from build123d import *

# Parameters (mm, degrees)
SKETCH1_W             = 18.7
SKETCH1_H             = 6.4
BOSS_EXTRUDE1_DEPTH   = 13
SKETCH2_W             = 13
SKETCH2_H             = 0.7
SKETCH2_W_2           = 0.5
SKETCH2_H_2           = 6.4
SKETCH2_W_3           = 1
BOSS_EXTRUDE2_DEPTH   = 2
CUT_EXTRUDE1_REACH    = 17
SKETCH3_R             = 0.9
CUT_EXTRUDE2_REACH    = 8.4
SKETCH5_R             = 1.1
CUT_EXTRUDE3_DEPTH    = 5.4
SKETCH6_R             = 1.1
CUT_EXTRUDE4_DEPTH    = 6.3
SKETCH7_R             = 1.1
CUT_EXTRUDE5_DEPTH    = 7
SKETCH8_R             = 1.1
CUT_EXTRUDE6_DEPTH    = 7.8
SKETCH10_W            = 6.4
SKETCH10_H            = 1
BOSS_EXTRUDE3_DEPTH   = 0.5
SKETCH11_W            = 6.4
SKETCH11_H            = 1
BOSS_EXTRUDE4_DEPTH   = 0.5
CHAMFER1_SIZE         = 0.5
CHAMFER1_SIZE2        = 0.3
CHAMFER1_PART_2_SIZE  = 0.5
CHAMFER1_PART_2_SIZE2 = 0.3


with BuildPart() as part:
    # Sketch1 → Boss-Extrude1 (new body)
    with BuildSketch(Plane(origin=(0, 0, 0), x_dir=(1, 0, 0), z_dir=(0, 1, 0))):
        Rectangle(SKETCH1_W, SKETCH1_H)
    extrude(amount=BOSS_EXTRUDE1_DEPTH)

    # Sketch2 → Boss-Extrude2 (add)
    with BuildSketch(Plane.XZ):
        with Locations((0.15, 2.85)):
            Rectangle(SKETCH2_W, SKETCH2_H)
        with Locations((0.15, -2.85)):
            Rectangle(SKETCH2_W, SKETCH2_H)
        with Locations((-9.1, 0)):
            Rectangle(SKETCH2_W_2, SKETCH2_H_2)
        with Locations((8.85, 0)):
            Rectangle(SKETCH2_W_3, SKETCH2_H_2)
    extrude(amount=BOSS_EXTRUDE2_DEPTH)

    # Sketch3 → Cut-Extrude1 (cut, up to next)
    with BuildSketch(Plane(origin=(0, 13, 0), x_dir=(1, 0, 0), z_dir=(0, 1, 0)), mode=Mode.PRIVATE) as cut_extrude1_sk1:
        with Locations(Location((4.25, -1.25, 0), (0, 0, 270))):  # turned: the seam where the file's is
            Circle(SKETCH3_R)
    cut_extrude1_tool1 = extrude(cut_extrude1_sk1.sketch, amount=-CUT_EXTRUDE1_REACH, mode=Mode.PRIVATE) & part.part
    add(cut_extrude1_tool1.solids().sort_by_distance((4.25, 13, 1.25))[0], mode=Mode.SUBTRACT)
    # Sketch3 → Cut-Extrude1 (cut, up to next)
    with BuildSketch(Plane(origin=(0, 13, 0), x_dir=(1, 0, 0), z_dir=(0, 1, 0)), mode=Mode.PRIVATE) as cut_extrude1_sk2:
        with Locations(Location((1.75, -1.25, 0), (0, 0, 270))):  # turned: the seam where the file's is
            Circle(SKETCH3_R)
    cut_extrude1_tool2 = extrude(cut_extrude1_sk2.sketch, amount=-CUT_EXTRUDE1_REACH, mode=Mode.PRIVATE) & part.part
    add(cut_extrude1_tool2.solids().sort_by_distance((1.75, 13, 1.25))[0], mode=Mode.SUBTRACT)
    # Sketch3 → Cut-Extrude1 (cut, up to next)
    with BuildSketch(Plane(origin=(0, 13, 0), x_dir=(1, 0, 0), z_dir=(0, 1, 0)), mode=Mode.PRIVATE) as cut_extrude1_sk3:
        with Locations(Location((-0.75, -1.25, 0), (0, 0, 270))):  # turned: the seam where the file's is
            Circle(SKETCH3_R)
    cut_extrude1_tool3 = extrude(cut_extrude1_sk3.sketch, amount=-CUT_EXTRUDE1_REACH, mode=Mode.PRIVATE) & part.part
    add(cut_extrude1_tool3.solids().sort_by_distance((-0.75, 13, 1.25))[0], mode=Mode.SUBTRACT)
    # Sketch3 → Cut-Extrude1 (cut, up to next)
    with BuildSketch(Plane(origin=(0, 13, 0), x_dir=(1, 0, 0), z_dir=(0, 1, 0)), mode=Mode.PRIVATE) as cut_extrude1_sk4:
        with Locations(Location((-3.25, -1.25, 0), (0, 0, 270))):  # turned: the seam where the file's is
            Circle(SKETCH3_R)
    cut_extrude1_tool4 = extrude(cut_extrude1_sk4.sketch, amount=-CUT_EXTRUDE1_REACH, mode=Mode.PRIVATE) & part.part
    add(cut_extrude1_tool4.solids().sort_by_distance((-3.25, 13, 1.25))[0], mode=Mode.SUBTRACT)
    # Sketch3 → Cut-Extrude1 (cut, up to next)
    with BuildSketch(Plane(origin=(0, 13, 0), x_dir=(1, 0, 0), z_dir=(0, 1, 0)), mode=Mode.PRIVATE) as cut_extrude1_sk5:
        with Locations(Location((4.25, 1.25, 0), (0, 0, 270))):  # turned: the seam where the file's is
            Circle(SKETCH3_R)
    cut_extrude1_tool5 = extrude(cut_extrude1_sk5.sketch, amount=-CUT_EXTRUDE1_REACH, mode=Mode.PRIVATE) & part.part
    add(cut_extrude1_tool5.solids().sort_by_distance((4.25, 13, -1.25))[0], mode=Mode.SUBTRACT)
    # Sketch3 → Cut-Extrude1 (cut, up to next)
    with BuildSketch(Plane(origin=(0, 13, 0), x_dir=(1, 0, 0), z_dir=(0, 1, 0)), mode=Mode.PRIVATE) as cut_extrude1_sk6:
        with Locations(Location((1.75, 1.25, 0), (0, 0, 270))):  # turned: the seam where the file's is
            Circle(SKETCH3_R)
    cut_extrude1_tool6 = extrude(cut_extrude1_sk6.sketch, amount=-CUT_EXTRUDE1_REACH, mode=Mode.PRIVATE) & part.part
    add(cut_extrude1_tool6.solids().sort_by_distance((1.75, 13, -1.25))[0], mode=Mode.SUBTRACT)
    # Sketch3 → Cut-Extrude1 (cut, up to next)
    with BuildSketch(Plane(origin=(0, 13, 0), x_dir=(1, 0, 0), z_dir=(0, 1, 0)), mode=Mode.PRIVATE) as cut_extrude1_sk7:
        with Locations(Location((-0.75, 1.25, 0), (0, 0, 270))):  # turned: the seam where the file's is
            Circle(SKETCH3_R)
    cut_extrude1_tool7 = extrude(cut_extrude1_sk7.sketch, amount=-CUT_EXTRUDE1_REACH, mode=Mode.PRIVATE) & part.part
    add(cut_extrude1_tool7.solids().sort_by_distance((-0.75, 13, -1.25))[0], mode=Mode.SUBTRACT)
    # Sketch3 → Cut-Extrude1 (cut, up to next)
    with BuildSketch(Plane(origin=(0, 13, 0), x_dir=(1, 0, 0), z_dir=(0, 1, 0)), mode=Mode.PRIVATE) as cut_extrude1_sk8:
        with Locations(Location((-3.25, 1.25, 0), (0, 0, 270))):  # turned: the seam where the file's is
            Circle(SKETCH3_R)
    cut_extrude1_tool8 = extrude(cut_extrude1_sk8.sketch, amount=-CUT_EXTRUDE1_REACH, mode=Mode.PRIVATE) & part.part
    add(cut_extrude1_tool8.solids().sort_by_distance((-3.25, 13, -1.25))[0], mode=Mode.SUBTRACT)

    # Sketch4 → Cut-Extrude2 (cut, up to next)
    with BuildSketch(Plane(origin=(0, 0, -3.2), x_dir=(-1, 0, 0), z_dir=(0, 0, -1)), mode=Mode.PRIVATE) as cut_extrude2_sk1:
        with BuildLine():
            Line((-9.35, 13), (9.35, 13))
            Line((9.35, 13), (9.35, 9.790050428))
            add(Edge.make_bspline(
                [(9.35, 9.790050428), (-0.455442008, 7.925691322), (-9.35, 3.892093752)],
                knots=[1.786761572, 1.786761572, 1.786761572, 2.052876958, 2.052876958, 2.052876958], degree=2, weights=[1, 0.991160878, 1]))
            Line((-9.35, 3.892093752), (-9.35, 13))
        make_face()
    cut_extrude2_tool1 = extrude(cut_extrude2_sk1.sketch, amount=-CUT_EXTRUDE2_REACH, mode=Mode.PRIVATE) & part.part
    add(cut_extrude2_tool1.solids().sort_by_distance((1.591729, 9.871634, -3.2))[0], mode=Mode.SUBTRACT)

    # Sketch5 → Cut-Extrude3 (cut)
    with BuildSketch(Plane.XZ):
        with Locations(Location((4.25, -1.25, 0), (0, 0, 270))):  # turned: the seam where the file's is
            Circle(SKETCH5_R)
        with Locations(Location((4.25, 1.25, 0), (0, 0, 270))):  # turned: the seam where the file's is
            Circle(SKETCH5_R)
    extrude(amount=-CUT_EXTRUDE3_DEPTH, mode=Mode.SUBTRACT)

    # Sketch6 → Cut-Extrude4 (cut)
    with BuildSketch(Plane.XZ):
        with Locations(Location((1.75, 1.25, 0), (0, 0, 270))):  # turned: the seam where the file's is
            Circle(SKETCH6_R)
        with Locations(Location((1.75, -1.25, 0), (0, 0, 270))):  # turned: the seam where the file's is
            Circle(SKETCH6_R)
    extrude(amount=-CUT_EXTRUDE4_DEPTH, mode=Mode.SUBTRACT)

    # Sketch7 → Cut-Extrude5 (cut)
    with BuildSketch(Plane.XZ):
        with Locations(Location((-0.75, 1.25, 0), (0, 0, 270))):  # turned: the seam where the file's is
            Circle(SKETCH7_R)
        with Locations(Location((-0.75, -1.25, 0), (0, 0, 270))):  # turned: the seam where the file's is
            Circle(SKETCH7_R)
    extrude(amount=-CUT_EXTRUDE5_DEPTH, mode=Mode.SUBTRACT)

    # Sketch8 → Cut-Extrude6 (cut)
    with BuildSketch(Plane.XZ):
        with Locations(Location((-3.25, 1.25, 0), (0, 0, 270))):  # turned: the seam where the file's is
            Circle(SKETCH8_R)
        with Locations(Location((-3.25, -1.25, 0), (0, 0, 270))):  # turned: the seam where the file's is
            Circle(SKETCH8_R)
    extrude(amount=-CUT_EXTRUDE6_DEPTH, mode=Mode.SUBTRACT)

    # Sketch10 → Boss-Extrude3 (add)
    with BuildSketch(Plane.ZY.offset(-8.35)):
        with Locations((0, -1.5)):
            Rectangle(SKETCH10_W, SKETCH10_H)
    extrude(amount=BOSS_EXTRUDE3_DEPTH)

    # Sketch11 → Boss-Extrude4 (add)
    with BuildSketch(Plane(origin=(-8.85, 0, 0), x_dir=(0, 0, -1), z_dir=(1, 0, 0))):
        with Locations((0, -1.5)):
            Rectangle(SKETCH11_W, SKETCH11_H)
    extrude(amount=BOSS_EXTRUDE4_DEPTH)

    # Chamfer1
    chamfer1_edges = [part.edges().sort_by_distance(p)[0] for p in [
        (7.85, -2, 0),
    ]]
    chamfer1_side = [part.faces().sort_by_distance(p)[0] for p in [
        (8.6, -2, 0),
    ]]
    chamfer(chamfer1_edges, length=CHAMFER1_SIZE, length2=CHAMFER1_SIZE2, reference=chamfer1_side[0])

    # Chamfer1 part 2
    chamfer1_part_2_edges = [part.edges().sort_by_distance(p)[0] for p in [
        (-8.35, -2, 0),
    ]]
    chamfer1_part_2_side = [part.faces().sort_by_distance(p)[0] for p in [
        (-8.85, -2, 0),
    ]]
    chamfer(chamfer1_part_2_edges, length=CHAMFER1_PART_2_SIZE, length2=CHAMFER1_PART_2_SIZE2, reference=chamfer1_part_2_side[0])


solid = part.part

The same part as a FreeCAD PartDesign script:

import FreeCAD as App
import Part
import Sketcher
Q = App.Units.Quantity


def edges_at(feature, points):
    """Names of the edges that pass closest to the given points."""
    edges = feature.Shape.Edges
    near = lambda p: min(range(len(edges)), key=lambda i: edges[i].distToShape(Part.Vertex(*p))[0])
    return sorted({f"Edge{near(p) + 1}" for p in points})

doc = App.newDocument("Part")
body = doc.addObject("PartDesign::Body", "Body")

# Sketch on XZ plane
sketch1 = body.newObject("Sketcher::SketchObject", "Sketch")
sketch1.AttachmentSupport = (doc.getObject("XZ_Plane"), [""])
sketch1.MapMode = "FlatFace"
sketch1.addGeometry(Part.LineSegment(App.Vector(-9, -3, 0), App.Vector(-9, 3, 0)), False)
sketch1.addGeometry(Part.LineSegment(App.Vector(-9, 3, 0), App.Vector(9, 3, 0)), False)
sketch1.addGeometry(Part.LineSegment(App.Vector(9, 3, 0), App.Vector(9, -3, 0)), False)
sketch1.addGeometry(Part.LineSegment(App.Vector(9, -3, 0), App.Vector(-9, -3, 0)), False)
sketch1.addConstraint(Sketcher.Constraint("Coincident", 0, 2, 1, 1))
sketch1.addConstraint(Sketcher.Constraint("Coincident", 1, 2, 2, 1))
sketch1.addConstraint(Sketcher.Constraint("Coincident", 2, 2, 3, 1))
sketch1.addConstraint(Sketcher.Constraint("Coincident", 3, 2, 0, 1))
sketch1.addConstraint(Sketcher.Constraint("Vertical", 0))
sketch1.addConstraint(Sketcher.Constraint("Horizontal", 1))
sketch1.addConstraint(Sketcher.Constraint("Vertical", 2))
sketch1.addConstraint(Sketcher.Constraint("Horizontal", 3))
sketch1.addConstraint(Sketcher.Constraint("Symmetric", 0, 2, 2, 2, -1, 1))
sketch1.addConstraint(Sketcher.Constraint("DistanceX", 1, 1, 1, 2, Q("18.7 mm")))
sketch1.addConstraint(Sketcher.Constraint("DistanceY", 0, 1, 0, 2, Q("6.4 mm")))
pad1 = body.newObject("PartDesign::Pad", "Pad")
pad1.Profile = sketch1
pad1.Length = 13
pad1.Reversed = True

# Sketch on XZ plane
sketch2 = body.newObject("Sketcher::SketchObject", "Sketch001")
sketch2.AttachmentSupport = (doc.getObject("XZ_Plane"), [""])
sketch2.MapMode = "FlatFace"
sketch2.addGeometry(Part.LineSegment(App.Vector(-6.3, 3.2, 0), App.Vector(-6.3, 2.5, 0)), False)
sketch2.addGeometry(Part.LineSegment(App.Vector(-6.3, 2.5, 0), App.Vector(6.7, 2.5, 0)), False)
sketch2.addGeometry(Part.LineSegment(App.Vector(6.7, 2.5, 0), App.Vector(6.7, 3.2, 0)), False)
sketch2.addGeometry(Part.LineSegment(App.Vector(6.7, 3.2, 0), App.Vector(-6.3, 3.2, 0)), False)
sketch2.addGeometry(Part.LineSegment(App.Vector(-6.3, -2.5, 0), App.Vector(-6.3, -3.2, 0)), False)
sketch2.addGeometry(Part.LineSegment(App.Vector(-6.3, -3.2, 0), App.Vector(6.7, -3.2, 0)), False)
sketch2.addGeometry(Part.LineSegment(App.Vector(6.7, -3.2, 0), App.Vector(6.7, -2.5, 0)), False)
sketch2.addGeometry(Part.LineSegment(App.Vector(6.7, -2.5, 0), App.Vector(-6.3, -2.5, 0)), False)
sketch2.addGeometry(Part.LineSegment(App.Vector(-9.3, 3.2, 0), App.Vector(-9.3, -3.2, 0)), False)
sketch2.addGeometry(Part.LineSegment(App.Vector(-9.3, -3.2, 0), App.Vector(-8.8, -3.2, 0)), False)
sketch2.addGeometry(Part.LineSegment(App.Vector(-8.8, -3.2, 0), App.Vector(-8.8, 3.2, 0)), False)
sketch2.addGeometry(Part.LineSegment(App.Vector(-8.8, 3.2, 0), App.Vector(-9.3, 3.2, 0)), False)
sketch2.addGeometry(Part.LineSegment(App.Vector(8.3, 3.2, 0), App.Vector(8.3, -3.2, 0)), False)
sketch2.addGeometry(Part.LineSegment(App.Vector(8.3, -3.2, 0), App.Vector(9.3, -3.2, 0)), False)
sketch2.addGeometry(Part.LineSegment(App.Vector(9.3, -3.2, 0), App.Vector(9.3, 3.2, 0)), False)
sketch2.addGeometry(Part.LineSegment(App.Vector(9.3, 3.2, 0), App.Vector(8.3, 3.2, 0)), False)
sketch2.addConstraint(Sketcher.Constraint("Coincident", 0, 2, 1, 1))
sketch2.addConstraint(Sketcher.Constraint("Coincident", 1, 2, 2, 1))
sketch2.addConstraint(Sketcher.Constraint("Coincident", 2, 2, 3, 1))
sketch2.addConstraint(Sketcher.Constraint("Coincident", 3, 2, 0, 1))
sketch2.addConstraint(Sketcher.Constraint("Coincident", 4, 2, 5, 1))
sketch2.addConstraint(Sketcher.Constraint("Coincident", 5, 2, 6, 1))
sketch2.addConstraint(Sketcher.Constraint("Coincident", 6, 2, 7, 1))
sketch2.addConstraint(Sketcher.Constraint("Coincident", 7, 2, 4, 1))
sketch2.addConstraint(Sketcher.Constraint("Coincident", 8, 2, 9, 1))
sketch2.addConstraint(Sketcher.Constraint("Coincident", 9, 2, 10, 1))
sketch2.addConstraint(Sketcher.Constraint("Coincident", 10, 2, 11, 1))
sketch2.addConstraint(Sketcher.Constraint("Coincident", 11, 2, 8, 1))
sketch2.addConstraint(Sketcher.Constraint("Coincident", 12, 2, 13, 1))
sketch2.addConstraint(Sketcher.Constraint("Coincident", 13, 2, 14, 1))
sketch2.addConstraint(Sketcher.Constraint("Coincident", 14, 2, 15, 1))
sketch2.addConstraint(Sketcher.Constraint("Coincident", 15, 2, 12, 1))
sketch2.addConstraint(Sketcher.Constraint("Vertical", 0))
sketch2.addConstraint(Sketcher.Constraint("Horizontal", 1))
sketch2.addConstraint(Sketcher.Constraint("Vertical", 2))
sketch2.addConstraint(Sketcher.Constraint("Horizontal", 3))
sketch2.addConstraint(Sketcher.Constraint("Vertical", 4))
sketch2.addConstraint(Sketcher.Constraint("Horizontal", 5))
sketch2.addConstraint(Sketcher.Constraint("Vertical", 6))
sketch2.addConstraint(Sketcher.Constraint("Horizontal", 7))
sketch2.addConstraint(Sketcher.Constraint("Vertical", 8))
sketch2.addConstraint(Sketcher.Constraint("Horizontal", 9))
sketch2.addConstraint(Sketcher.Constraint("Vertical", 10))
sketch2.addConstraint(Sketcher.Constraint("Horizontal", 11))
sketch2.addConstraint(Sketcher.Constraint("Vertical", 12))
sketch2.addConstraint(Sketcher.Constraint("Horizontal", 13))
sketch2.addConstraint(Sketcher.Constraint("Vertical", 14))
sketch2.addConstraint(Sketcher.Constraint("Horizontal", 15))
sketch2.addConstraint(Sketcher.Constraint("Symmetric", 11, 2, 13, 2, -1, 1))
sketch2.addConstraint(Sketcher.Constraint("Symmetric", 3, 2, 4, 2, -1))
sketch2.addConstraint(Sketcher.Constraint("Symmetric", 1, 2, 6, 2, -1))
sketch2.addConstraint(Sketcher.Constraint("Horizontal", 5, 2, 8, 2))
sketch2.addConstraint(Sketcher.Constraint("Horizontal", 3, 2, 10, 2))
sketch2.addConstraint(Sketcher.Constraint("Horizontal", 11, 2, 14, 2))
sketch2.addConstraint(Sketcher.Constraint("DistanceX", 1, 1, 1, 2, Q("13 mm")))
sketch2.addConstraint(Sketcher.Constraint("DistanceX", 13, 1, 13, 2, Q("1 mm")))
sketch2.addConstraint(Sketcher.Constraint("DistanceX", 9, 1, 9, 2, Q("0.5 mm")))
sketch2.addConstraint(Sketcher.Constraint("DistanceY", 0, 2, 0, 1, Q("0.7 mm")))
sketch2.addConstraint(Sketcher.Constraint("DistanceY", 8, 2, 8, 1, Q("6.4 mm")))
sketch2.addConstraint(Sketcher.Constraint("DistanceX", 8, 2, 4, 2, Q("3 mm")))
sketch2.addConstraint(Sketcher.Constraint("DistanceX", 5, 2, 12, 2, Q("1.7 mm")))
pad2 = body.newObject("PartDesign::Pad", "Pad001")
pad2.Profile = sketch2
pad2.Length = 2

# Sketch on XZ plane
sketch3 = body.newObject("Sketcher::SketchObject", "Sketch002")
sketch3.AttachmentSupport = (doc.getObject("XZ_Plane"), [""])
sketch3.MapMode = "FlatFace"
sketch3.AttachmentOffset = App.Placement(App.Vector(0, 0, -13), App.Rotation())
sketch3.addGeometry(Part.Circle(App.Vector(4.2, 1.2, 0), App.Vector(0, 0, 1), 0.9), False)
sketch3.addConstraint(Sketcher.Constraint("Diameter", 0, Q("1.8 mm")))
sketch3.addConstraint(Sketcher.Constraint("DistanceX", -1, 1, 0, 3, Q("4.25 mm")))
sketch3.addConstraint(Sketcher.Constraint("DistanceY", -1, 1, 0, 3, Q("1.25 mm")))
pocket1 = body.newObject("PartDesign::Pocket", "Pocket")
pocket1.Profile = sketch3
pocket1.Type = "UpToFirst"
pocket1.Reversed = True

# Sketch on XZ plane
sketch4 = body.newObject("Sketcher::SketchObject", "Sketch003")
sketch4.AttachmentSupport = (doc.getObject("XZ_Plane"), [""])
sketch4.MapMode = "FlatFace"
sketch4.AttachmentOffset = App.Placement(App.Vector(0, 0, -13), App.Rotation())
sketch4.addGeometry(Part.Circle(App.Vector(1.8, 1.2, 0), App.Vector(0, 0, 1), 0.9), False)
sketch4.addConstraint(Sketcher.Constraint("Diameter", 0, Q("1.8 mm")))
sketch4.addConstraint(Sketcher.Constraint("DistanceX", -1, 1, 0, 3, Q("1.75 mm")))
sketch4.addConstraint(Sketcher.Constraint("DistanceY", -1, 1, 0, 3, Q("1.25 mm")))
pocket2 = body.newObject("PartDesign::Pocket", "Pocket001")
pocket2.Profile = sketch4
pocket2.Type = "UpToFirst"
pocket2.Reversed = True

# Sketch on XZ plane
sketch5 = body.newObject("Sketcher::SketchObject", "Sketch004")
sketch5.AttachmentSupport = (doc.getObject("XZ_Plane"), [""])
sketch5.MapMode = "FlatFace"
sketch5.AttachmentOffset = App.Placement(App.Vector(0, 0, -13), App.Rotation())
sketch5.addGeometry(Part.Circle(App.Vector(-0.8, 1.2, 0), App.Vector(0, 0, 1), 0.9), False)
sketch5.addConstraint(Sketcher.Constraint("Diameter", 0, Q("1.8 mm")))
sketch5.addConstraint(Sketcher.Constraint("DistanceX", 0, 3, -1, 1, Q("0.75 mm")))
sketch5.addConstraint(Sketcher.Constraint("DistanceY", -1, 1, 0, 3, Q("1.25 mm")))
pocket3 = body.newObject("PartDesign::Pocket", "Pocket002")
pocket3.Profile = sketch5
pocket3.Type = "UpToFirst"
pocket3.Reversed = True

# Sketch on XZ plane
sketch6 = body.newObject("Sketcher::SketchObject", "Sketch005")
sketch6.AttachmentSupport = (doc.getObject("XZ_Plane"), [""])
sketch6.MapMode = "FlatFace"
sketch6.AttachmentOffset = App.Placement(App.Vector(0, 0, -13), App.Rotation())
sketch6.addGeometry(Part.Circle(App.Vector(-3.2, 1.2, 0), App.Vector(0, 0, 1), 0.9), False)
sketch6.addConstraint(Sketcher.Constraint("Diameter", 0, Q("1.8 mm")))
sketch6.addConstraint(Sketcher.Constraint("DistanceX", 0, 3, -1, 1, Q("3.25 mm")))
sketch6.addConstraint(Sketcher.Constraint("DistanceY", -1, 1, 0, 3, Q("1.25 mm")))
pocket4 = body.newObject("PartDesign::Pocket", "Pocket003")
pocket4.Profile = sketch6
pocket4.Type = "UpToFirst"
pocket4.Reversed = True

# Sketch on XZ plane
sketch7 = body.newObject("Sketcher::SketchObject", "Sketch006")
sketch7.AttachmentSupport = (doc.getObject("XZ_Plane"), [""])
sketch7.MapMode = "FlatFace"
sketch7.AttachmentOffset = App.Placement(App.Vector(0, 0, -13), App.Rotation())
sketch7.addGeometry(Part.Circle(App.Vector(4.2, -1.2, 0), App.Vector(0, 0, 1), 0.9), False)
sketch7.addConstraint(Sketcher.Constraint("Diameter", 0, Q("1.8 mm")))
sketch7.addConstraint(Sketcher.Constraint("DistanceX", -1, 1, 0, 3, Q("4.25 mm")))
sketch7.addConstraint(Sketcher.Constraint("DistanceY", 0, 3, -1, 1, Q("1.25 mm")))
pocket5 = body.newObject("PartDesign::Pocket", "Pocket004")
pocket5.Profile = sketch7
pocket5.Type = "UpToFirst"
pocket5.Reversed = True

# Sketch on XZ plane
sketch8 = body.newObject("Sketcher::SketchObject", "Sketch007")
sketch8.AttachmentSupport = (doc.getObject("XZ_Plane"), [""])
sketch8.MapMode = "FlatFace"
sketch8.AttachmentOffset = App.Placement(App.Vector(0, 0, -13), App.Rotation())
sketch8.addGeometry(Part.Circle(App.Vector(1.8, -1.2, 0), App.Vector(0, 0, 1), 0.9), False)
sketch8.addConstraint(Sketcher.Constraint("Diameter", 0, Q("1.8 mm")))
sketch8.addConstraint(Sketcher.Constraint("DistanceX", -1, 1, 0, 3, Q("1.75 mm")))
sketch8.addConstraint(Sketcher.Constraint("DistanceY", 0, 3, -1, 1, Q("1.25 mm")))
pocket6 = body.newObject("PartDesign::Pocket", "Pocket005")
pocket6.Profile = sketch8
pocket6.Type = "UpToFirst"
pocket6.Reversed = True

# Sketch on XZ plane
sketch9 = body.newObject("Sketcher::SketchObject", "Sketch008")
sketch9.AttachmentSupport = (doc.getObject("XZ_Plane"), [""])
sketch9.MapMode = "FlatFace"
sketch9.AttachmentOffset = App.Placement(App.Vector(0, 0, -13), App.Rotation())
sketch9.addGeometry(Part.Circle(App.Vector(-0.8, -1.2, 0), App.Vector(0, 0, 1), 0.9), False)
sketch9.addConstraint(Sketcher.Constraint("Diameter", 0, Q("1.8 mm")))
sketch9.addConstraint(Sketcher.Constraint("DistanceX", 0, 3, -1, 1, Q("0.75 mm")))
sketch9.addConstraint(Sketcher.Constraint("DistanceY", 0, 3, -1, 1, Q("1.25 mm")))
pocket7 = body.newObject("PartDesign::Pocket", "Pocket006")
pocket7.Profile = sketch9
pocket7.Type = "UpToFirst"
pocket7.Reversed = True

# Sketch on XZ plane
sketch10 = body.newObject("Sketcher::SketchObject", "Sketch009")
sketch10.AttachmentSupport = (doc.getObject("XZ_Plane"), [""])
sketch10.MapMode = "FlatFace"
sketch10.AttachmentOffset = App.Placement(App.Vector(0, 0, -13), App.Rotation())
sketch10.addGeometry(Part.Circle(App.Vector(-3.2, -1.2, 0), App.Vector(0, 0, 1), 0.9), False)
sketch10.addConstraint(Sketcher.Constraint("Diameter", 0, Q("1.8 mm")))
sketch10.addConstraint(Sketcher.Constraint("DistanceX", 0, 3, -1, 1, Q("3.25 mm")))
sketch10.addConstraint(Sketcher.Constraint("DistanceY", 0, 3, -1, 1, Q("1.25 mm")))
pocket8 = body.newObject("PartDesign::Pocket", "Pocket007")
pocket8.Profile = sketch10
pocket8.Type = "UpToFirst"
pocket8.Reversed = True

# Sketch on XY plane
sketch11 = body.newObject("Sketcher::SketchObject", "Sketch010")
sketch11.AttachmentSupport = (doc.getObject("XY_Plane"), [""])
sketch11.MapMode = "FlatFace"
sketch11.AttachmentOffset = App.Placement(App.Vector(0, 0, -3.2), App.Rotation())
sketch11.addGeometry(Part.LineSegment(App.Vector(-9.35, 13, 0), App.Vector(9.35, 13, 0)), False)
sketch11.addGeometry(Part.LineSegment(App.Vector(9.35, 13, 0), App.Vector(9.35, 3.892094, 0)), False)
sketch11.addGeometry(Part.BSplineCurve([App.Vector(-9.35, 9.79005, 0), App.Vector(0.455442, 7.925691, 0), App.Vector(9.35, 3.892094, 0)], [3, 3], [1.786761572, 2.052876958], False, 2, [1, 0.991160878, 1], False), False)
sketch11.addGeometry(Part.LineSegment(App.Vector(-9.35, 9.79005, 0), App.Vector(-9.35, 13, 0)), False)
sketch11.addConstraint(Sketcher.Constraint("Block", 2))
sketch11.addConstraint(Sketcher.Constraint("Coincident", 0, 2, 1, 1))
sketch11.addConstraint(Sketcher.Constraint("Coincident", 1, 2, 2, 2))
sketch11.addConstraint(Sketcher.Constraint("Coincident", 2, 1, 3, 1))
sketch11.addConstraint(Sketcher.Constraint("Coincident", 3, 2, 0, 1))
sketch11.addConstraint(Sketcher.Constraint("Horizontal", 0))
sketch11.addConstraint(Sketcher.Constraint("Vertical", 1))
sketch11.addConstraint(Sketcher.Constraint("Vertical", 3))
sketch11.addConstraint(Sketcher.Constraint("DistanceY", -1, 1, 0, 2, Q("13 mm")))
pocket9 = body.newObject("PartDesign::Pocket", "Pocket008")
pocket9.Profile = sketch11
pocket9.Type = "UpToFirst"
pocket9.Reversed = True

# Sketch on XZ plane
sketch12 = body.newObject("Sketcher::SketchObject", "Sketch011")
sketch12.AttachmentSupport = (doc.getObject("XZ_Plane"), [""])
sketch12.MapMode = "FlatFace"
sketch12.addGeometry(Part.Circle(App.Vector(4.2, -1.2, 0), App.Vector(0, 0, 1), 1.1), False)
sketch12.addGeometry(Part.Circle(App.Vector(4.2, 1.2, 0), App.Vector(0, 0, 1), 1.1), False)
sketch12.addConstraint(Sketcher.Constraint("Equal", 0, 1))
sketch12.addConstraint(Sketcher.Constraint("Symmetric", 0, 3, 1, 3, -1))
sketch12.addConstraint(Sketcher.Constraint("Diameter", 0, Q("2.2 mm")))
sketch12.addConstraint(Sketcher.Constraint("DistanceY", 0, 3, 1, 3, Q("2.5 mm")))
sketch12.addConstraint(Sketcher.Constraint("DistanceX", -1, 1, 0, 3, Q("4.25 mm")))
pocket10 = body.newObject("PartDesign::Pocket", "Pocket009")
pocket10.Profile = sketch12
pocket10.Length = 5.4

# Sketch on XZ plane
sketch13 = body.newObject("Sketcher::SketchObject", "Sketch012")
sketch13.AttachmentSupport = (doc.getObject("XZ_Plane"), [""])
sketch13.MapMode = "FlatFace"
sketch13.addGeometry(Part.Circle(App.Vector(1.8, 1.2, 0), App.Vector(0, 0, 1), 1.1), False)
sketch13.addGeometry(Part.Circle(App.Vector(1.8, -1.2, 0), App.Vector(0, 0, 1), 1.1), False)
sketch13.addConstraint(Sketcher.Constraint("Equal", 0, 1))
sketch13.addConstraint(Sketcher.Constraint("Symmetric", 0, 3, 1, 3, -1))
sketch13.addConstraint(Sketcher.Constraint("Diameter", 0, Q("2.2 mm")))
sketch13.addConstraint(Sketcher.Constraint("DistanceY", 1, 3, 0, 3, Q("2.5 mm")))
sketch13.addConstraint(Sketcher.Constraint("DistanceX", -1, 1, 0, 3, Q("1.75 mm")))
pocket11 = body.newObject("PartDesign::Pocket", "Pocket010")
pocket11.Profile = sketch13
pocket11.Length = 6.3

# Sketch on XZ plane
sketch14 = body.newObject("Sketcher::SketchObject", "Sketch013")
sketch14.AttachmentSupport = (doc.getObject("XZ_Plane"), [""])
sketch14.MapMode = "FlatFace"
sketch14.addGeometry(Part.Circle(App.Vector(-0.8, 1.2, 0), App.Vector(0, 0, 1), 1.1), False)
sketch14.addGeometry(Part.Circle(App.Vector(-0.8, -1.2, 0), App.Vector(0, 0, 1), 1.1), False)
sketch14.addConstraint(Sketcher.Constraint("Equal", 0, 1))
sketch14.addConstraint(Sketcher.Constraint("Symmetric", 0, 3, 1, 3, -1))
sketch14.addConstraint(Sketcher.Constraint("Diameter", 0, Q("2.2 mm")))
sketch14.addConstraint(Sketcher.Constraint("DistanceY", 1, 3, 0, 3, Q("2.5 mm")))
sketch14.addConstraint(Sketcher.Constraint("DistanceX", 0, 3, -1, 1, Q("0.75 mm")))
pocket12 = body.newObject("PartDesign::Pocket", "Pocket011")
pocket12.Profile = sketch14
pocket12.Length = 7

# Sketch on XZ plane
sketch15 = body.newObject("Sketcher::SketchObject", "Sketch014")
sketch15.AttachmentSupport = (doc.getObject("XZ_Plane"), [""])
sketch15.MapMode = "FlatFace"
sketch15.addGeometry(Part.Circle(App.Vector(-3.2, 1.2, 0), App.Vector(0, 0, 1), 1.1), False)
sketch15.addGeometry(Part.Circle(App.Vector(-3.2, -1.2, 0), App.Vector(0, 0, 1), 1.1), False)
sketch15.addConstraint(Sketcher.Constraint("Equal", 0, 1))
sketch15.addConstraint(Sketcher.Constraint("Symmetric", 0, 3, 1, 3, -1))
sketch15.addConstraint(Sketcher.Constraint("Diameter", 0, Q("2.2 mm")))
sketch15.addConstraint(Sketcher.Constraint("DistanceY", 1, 3, 0, 3, Q("2.5 mm")))
sketch15.addConstraint(Sketcher.Constraint("DistanceX", 0, 3, -1, 1, Q("3.25 mm")))
pocket13 = body.newObject("PartDesign::Pocket", "Pocket012")
pocket13.Profile = sketch15
pocket13.Length = 7.8

# Sketch on YZ plane
sketch16 = body.newObject("Sketcher::SketchObject", "Sketch015")
sketch16.AttachmentSupport = (doc.getObject("YZ_Plane"), [""])
sketch16.MapMode = "FlatFace"
sketch16.AttachmentOffset = App.Placement(App.Vector(0, 0, 8.35), App.Rotation())
sketch16.addGeometry(Part.LineSegment(App.Vector(-1, -3.2, 0), App.Vector(-2, -3.2, 0)), False)
sketch16.addGeometry(Part.LineSegment(App.Vector(-2, -3.2, 0), App.Vector(-2, 3.2, 0)), False)
sketch16.addGeometry(Part.LineSegment(App.Vector(-2, 3.2, 0), App.Vector(-1, 3.2, 0)), False)
sketch16.addGeometry(Part.LineSegment(App.Vector(-1, 3.2, 0), App.Vector(-1, -3.2, 0)), False)
sketch16.addConstraint(Sketcher.Constraint("Coincident", 0, 2, 1, 1))
sketch16.addConstraint(Sketcher.Constraint("Coincident", 1, 2, 2, 1))
sketch16.addConstraint(Sketcher.Constraint("Coincident", 2, 2, 3, 1))
sketch16.addConstraint(Sketcher.Constraint("Coincident", 3, 2, 0, 1))
sketch16.addConstraint(Sketcher.Constraint("Horizontal", 0))
sketch16.addConstraint(Sketcher.Constraint("Vertical", 1))
sketch16.addConstraint(Sketcher.Constraint("Horizontal", 2))
sketch16.addConstraint(Sketcher.Constraint("Vertical", 3))
sketch16.addConstraint(Sketcher.Constraint("DistanceX", 0, 2, 0, 1, Q("1 mm")))
sketch16.addConstraint(Sketcher.Constraint("DistanceY", 1, 1, 1, 2, Q("6.4 mm")))
sketch16.addConstraint(Sketcher.Constraint("DistanceX", 0, 2, -1, 1, Q("2 mm")))
sketch16.addConstraint(Sketcher.Constraint("DistanceY", 0, 2, -1, 1, Q("3.2 mm")))
pad3 = body.newObject("PartDesign::Pad", "Pad002")
pad3.Profile = sketch16
pad3.Length = 0.5
pad3.Reversed = True

# Sketch on YZ plane
sketch17 = body.newObject("Sketcher::SketchObject", "Sketch016")
sketch17.AttachmentSupport = (doc.getObject("YZ_Plane"), [""])
sketch17.MapMode = "FlatFace"
sketch17.AttachmentOffset = App.Placement(App.Vector(0, 0, -8.85), App.Rotation())
sketch17.addGeometry(Part.LineSegment(App.Vector(-1, 3.2, 0), App.Vector(-2, 3.2, 0)), False)
sketch17.addGeometry(Part.LineSegment(App.Vector(-2, 3.2, 0), App.Vector(-2, -3.2, 0)), False)
sketch17.addGeometry(Part.LineSegment(App.Vector(-2, -3.2, 0), App.Vector(-1, -3.2, 0)), False)
sketch17.addGeometry(Part.LineSegment(App.Vector(-1, -3.2, 0), App.Vector(-1, 3.2, 0)), False)
sketch17.addConstraint(Sketcher.Constraint("Coincident", 0, 2, 1, 1))
sketch17.addConstraint(Sketcher.Constraint("Coincident", 1, 2, 2, 1))
sketch17.addConstraint(Sketcher.Constraint("Coincident", 2, 2, 3, 1))
sketch17.addConstraint(Sketcher.Constraint("Coincident", 3, 2, 0, 1))
sketch17.addConstraint(Sketcher.Constraint("Horizontal", 0))
sketch17.addConstraint(Sketcher.Constraint("Vertical", 1))
sketch17.addConstraint(Sketcher.Constraint("Horizontal", 2))
sketch17.addConstraint(Sketcher.Constraint("Vertical", 3))
sketch17.addConstraint(Sketcher.Constraint("DistanceX", 0, 2, 0, 1, Q("1 mm")))
sketch17.addConstraint(Sketcher.Constraint("DistanceY", 1, 2, 1, 1, Q("6.4 mm")))
sketch17.addConstraint(Sketcher.Constraint("DistanceX", 0, 2, -1, 1, Q("2 mm")))
sketch17.addConstraint(Sketcher.Constraint("DistanceY", -1, 1, 0, 2, Q("3.2 mm")))
pad4 = body.newObject("PartDesign::Pad", "Pad003")
pad4.Profile = sketch17
pad4.Length = 0.5
doc.recompute()

chamfer = body.newObject("PartDesign::Chamfer", "Chamfer")
chamfer.Base = (pad4, edges_at(pad4, [(7.85, -2, 0)]))
chamfer.ChamferType = "Two distances"
chamfer.Size = 0.5
chamfer.Size2 = 0.3
doc.recompute()

chamfer2 = body.newObject("PartDesign::Chamfer", "Chamfer001")
chamfer2.Base = (chamfer, edges_at(chamfer, [(-8.35, -2, 0)]))
chamfer2.ChamferType = "Two distances"
chamfer2.Size = 0.5
chamfer2.Size2 = 0.3

doc.recompute()
